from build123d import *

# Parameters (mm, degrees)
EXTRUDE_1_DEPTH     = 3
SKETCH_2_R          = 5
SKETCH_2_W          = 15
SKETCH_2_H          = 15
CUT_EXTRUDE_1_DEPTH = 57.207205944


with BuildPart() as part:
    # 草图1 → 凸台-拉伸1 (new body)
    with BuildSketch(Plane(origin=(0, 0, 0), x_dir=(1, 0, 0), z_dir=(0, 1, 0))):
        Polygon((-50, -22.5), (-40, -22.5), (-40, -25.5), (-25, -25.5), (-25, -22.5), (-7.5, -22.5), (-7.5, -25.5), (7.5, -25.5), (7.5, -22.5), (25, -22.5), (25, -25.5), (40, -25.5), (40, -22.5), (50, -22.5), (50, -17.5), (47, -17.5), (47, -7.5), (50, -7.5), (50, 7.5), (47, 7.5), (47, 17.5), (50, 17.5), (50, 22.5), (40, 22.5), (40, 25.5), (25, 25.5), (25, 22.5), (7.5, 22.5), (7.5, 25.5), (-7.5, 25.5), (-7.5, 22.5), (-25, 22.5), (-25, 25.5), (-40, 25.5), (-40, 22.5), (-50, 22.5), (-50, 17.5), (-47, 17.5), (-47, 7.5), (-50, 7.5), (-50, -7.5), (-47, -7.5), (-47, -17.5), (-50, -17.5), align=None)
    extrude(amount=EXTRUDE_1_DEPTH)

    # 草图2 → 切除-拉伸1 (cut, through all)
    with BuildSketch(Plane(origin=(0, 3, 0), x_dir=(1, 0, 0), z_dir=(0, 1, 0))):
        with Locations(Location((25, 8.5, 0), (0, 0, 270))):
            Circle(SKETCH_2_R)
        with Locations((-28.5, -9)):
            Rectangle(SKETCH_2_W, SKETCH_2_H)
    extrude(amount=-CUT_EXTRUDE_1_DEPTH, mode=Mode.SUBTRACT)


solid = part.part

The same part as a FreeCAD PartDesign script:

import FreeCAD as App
import Part
import Sketcher
Q = App.Units.Quantity


def add_polygon(sketch, points):
    """Adds a closed chain of lines whose ends are joined by coincident constraints."""
    first, n = sketch.GeometryCount, len(points)
    for a, b in zip(points, points[1:] + points[:1]):
        sketch.addGeometry(Part.LineSegment(App.Vector(*a, 0), App.Vector(*b, 0)), False)
    for i in range(n):
        sketch.addConstraint(Sketcher.Constraint("Coincident", first + i, 2, first + (i + 1) % n, 1))

doc = App.newDocument("Part")
body = doc.addObject("PartDesign::Body", "Body")

sketch1 = body.newObject("Sketcher::SketchObject", "Sketch")
sketch1.AttachmentSupport = (doc.getObject("XZ_Plane"), [""])
sketch1.MapMode = "FlatFace"
add_polygon(sketch1, [(-50, 22.5), (-40, 22.5), (-40, 25.5), (-25, 25.5), (-25, 22.5), (-7.5, 22.5), (-7.5, 25.5), (7.5, 25.5), (7.5, 22.5), (25, 22.5), (25, 25.5), (40, 25.5), (40, 22.5), (50, 22.5), (50, 17.5), (47, 17.5), (47, 7.5), (50, 7.5), (50, -7.5), (47, -7.5), (47, -17.5), (50, -17.5), (50, -22.5), (40, -22.5), (40, -25.5), (25, -25.5), (25, -22.5), (7.5, -22.5), (7.5, -25.5), (-7.5, -25.5), (-7.5, -22.5), (-25, -22.5), (-25, -25.5), (-40, -25.5), (-40, -22.5), (-50, -22.5), (-50, -17.5), (-47, -17.5), (-47, -7.5), (-50, -7.5), (-50, 7.5), (-47, 7.5), (-47, 17.5), (-50, 17.5)])
sketch1.addConstraint([
    Sketcher.Constraint("Horizontal", 0),
    Sketcher.Constraint("Vertical", 1),
    Sketcher.Constraint("Horizontal", 2),
    Sketcher.Constraint("Vertical", 3),
    Sketcher.Constraint("Horizontal", 4),
    Sketcher.Constraint("Vertical", 5),
    Sketcher.Constraint("Horizontal", 6),
    Sketcher.Constraint("Vertical", 7),
    Sketcher.Constraint("Horizontal", 8),
    Sketcher.Constraint("Vertical", 9),
    Sketcher.Constraint("Horizontal", 10),
    Sketcher.Constraint("Vertical", 11),
    Sketcher.Constraint("Horizontal", 12),
    Sketcher.Constraint("Vertical", 13),
    Sketcher.Constraint("Horizontal", 14),
    Sketcher.Constraint("Vertical", 15),
    Sketcher.Constraint("Horizontal", 16),
    Sketcher.Constraint("Vertical", 17),
    Sketcher.Constraint("Horizontal", 18),
    Sketcher.Constraint("Vertical", 19),
    Sketcher.Constraint("Horizontal", 20),
    Sketcher.Constraint("Vertical", 21),
    Sketcher.Constraint("Horizontal", 22),
    Sketcher.Constraint("Vertical", 23),
    Sketcher.Constraint("Horizontal", 24),
    Sketcher.Constraint("Vertical", 25),
    Sketcher.Constraint("Horizontal", 26),
    Sketcher.Constraint("Vertical", 27),
    Sketcher.Constraint("Horizontal", 28),
    Sketcher.Constraint("Vertical", 29),
    Sketcher.Constraint("Horizontal", 30),
    Sketcher.Constraint("Vertical", 31),
    Sketcher.Constraint("Horizontal", 32),
    Sketcher.Constraint("Vertical", 33),
    Sketcher.Constraint("Horizontal", 34),
    Sketcher.Constraint("Vertical", 35),
    Sketcher.Constraint("Horizontal", 36),
    Sketcher.Constraint("Vertical", 37),
    Sketcher.Constraint("Horizontal", 38),
    Sketcher.Constraint("Vertical", 39),
    Sketcher.Constraint("Horizontal", 40),
    Sketcher.Constraint("Vertical", 41),
    Sketcher.Constraint("Horizontal", 42),
    Sketcher.Constraint("Vertical", 43),
    Sketcher.Constraint("Symmetric", 0, 2, 22, 2, -1, 1),
    Sketcher.Constraint("Symmetric", 2, 2, 24, 2, -1, 1),
    Sketcher.Constraint("Symmetric", 4, 2, 26, 2, -1, 1),
    Sketcher.Constraint("Symmetric", 6, 2, 28, 2, -1, 1),
    Sketcher.Constraint("Symmetric", 8, 2, 30, 2, -1, 1),
    Sketcher.Constraint("Symmetric", 10, 2, 32, 2, -1, 1),
    Sketcher.Constraint("Symmetric", 12, 2, 34, 2, -1, 1),
    Sketcher.Constraint("Symmetric", 14, 2, 36, 2, -1, 1),
    Sketcher.Constraint("Symmetric", 16, 2, 38, 2, -1, 1),
    Sketcher.Constraint("Symmetric", 18, 2, 40, 2, -1, 1),
    Sketcher.Constraint("Symmetric", 20, 2, 42, 2, -1, 1),
    Sketcher.Constraint("Symmetric", 4, 2, 7, 2, -2),
    Sketcher.Constraint("Symmetric", 2, 2, 9, 2, -2),
    Sketcher.Constraint("Symmetric", 0, 2, 11, 2, -2),
    Sketcher.Constraint("Symmetric", 20, 2, 35, 2, -2),
    Sketcher.Constraint("Symmetric", 18, 2, 37, 2, -2),
    Sketcher.Constraint("Horizontal", 0, 2, 3, 2),
    Sketcher.Constraint("Horizontal", 2, 2, 5, 2),
    Sketcher.Constraint("Vertical", 13, 2, 16, 2),
    Sketcher.Constraint("Equal", 2, 6),
    Sketcher.Constraint("Equal", 42, 1),
    Sketcher.Constraint("Equal", 34, 15),
    Sketcher.Constraint("Equal", 32, 17),
    Sketcher.Constraint("DistanceX", 0, 1, 0, 2, Q("10 mm")),
    Sketcher.Constraint("DistanceX", 2, 1, 2, 2, Q("15 mm")),
    Sketcher.Constraint("DistanceX", 14, 2, 14, 1, Q("3 mm")),
    Sketcher.Constraint("DistanceY", 13, 2, 13, 1, Q("5 mm")),
    Sketcher.Constraint("DistanceX", 4, 1, 4, 2, Q("17.5 mm")),
])
pad1 = body.newObject("PartDesign::Pad", "Pad")
pad1.Profile = sketch1
pad1.Length = 3
pad1.Reversed = True

sketch2 = body.newObject("Sketcher::SketchObject", "Sketch001")
sketch2.AttachmentSupport = (doc.getObject("XZ_Plane"), [""])
sketch2.MapMode = "FlatFace"
sketch2.AttachmentOffset = App.Placement(App.Vector(0, 0, -3), App.Rotation())
sketch2.addGeometry(Part.Circle(App.Vector(25, -8.5, 0), App.Vector(0, 0, 1), 5), False)
add_polygon(sketch2, [(-36, 1.5), (-36, 16.5), (-21, 16.5), (-21, 1.5)])
sketch2.addConstraint([
    Sketcher.Constraint("Vertical", 1),
    Sketcher.Constraint("Horizontal", 2),
    Sketcher.Constraint("Vertical", 3),
    Sketcher.Constraint("Horizontal", 4),
    Sketcher.Constraint("Equal", 4, 1),
    Sketcher.Constraint("Diameter", 0, Q("10 mm")),
    Sketcher.Constraint("DistanceX", 2, 1, 2, 2, Q("15 mm")),
    Sketcher.Constraint("DistanceX", -1, 1, 0, 3, Q("25 mm")),
    Sketcher.Constraint("DistanceX", 1, 2, -1, 1, Q("36 mm")),
    Sketcher.Constraint("DistanceY", 0, 3, 1, 2, Q("25 mm")),
    Sketcher.Constraint("DistanceY", 0, 3, -1, 1, Q("8.5 mm")),
])
pocket1 = body.newObject("PartDesign::Pocket", "Pocket")
pocket1.Profile = sketch2
pocket1.Type = "ThroughAll"
pocket1.Reversed = True

doc.recompute()
